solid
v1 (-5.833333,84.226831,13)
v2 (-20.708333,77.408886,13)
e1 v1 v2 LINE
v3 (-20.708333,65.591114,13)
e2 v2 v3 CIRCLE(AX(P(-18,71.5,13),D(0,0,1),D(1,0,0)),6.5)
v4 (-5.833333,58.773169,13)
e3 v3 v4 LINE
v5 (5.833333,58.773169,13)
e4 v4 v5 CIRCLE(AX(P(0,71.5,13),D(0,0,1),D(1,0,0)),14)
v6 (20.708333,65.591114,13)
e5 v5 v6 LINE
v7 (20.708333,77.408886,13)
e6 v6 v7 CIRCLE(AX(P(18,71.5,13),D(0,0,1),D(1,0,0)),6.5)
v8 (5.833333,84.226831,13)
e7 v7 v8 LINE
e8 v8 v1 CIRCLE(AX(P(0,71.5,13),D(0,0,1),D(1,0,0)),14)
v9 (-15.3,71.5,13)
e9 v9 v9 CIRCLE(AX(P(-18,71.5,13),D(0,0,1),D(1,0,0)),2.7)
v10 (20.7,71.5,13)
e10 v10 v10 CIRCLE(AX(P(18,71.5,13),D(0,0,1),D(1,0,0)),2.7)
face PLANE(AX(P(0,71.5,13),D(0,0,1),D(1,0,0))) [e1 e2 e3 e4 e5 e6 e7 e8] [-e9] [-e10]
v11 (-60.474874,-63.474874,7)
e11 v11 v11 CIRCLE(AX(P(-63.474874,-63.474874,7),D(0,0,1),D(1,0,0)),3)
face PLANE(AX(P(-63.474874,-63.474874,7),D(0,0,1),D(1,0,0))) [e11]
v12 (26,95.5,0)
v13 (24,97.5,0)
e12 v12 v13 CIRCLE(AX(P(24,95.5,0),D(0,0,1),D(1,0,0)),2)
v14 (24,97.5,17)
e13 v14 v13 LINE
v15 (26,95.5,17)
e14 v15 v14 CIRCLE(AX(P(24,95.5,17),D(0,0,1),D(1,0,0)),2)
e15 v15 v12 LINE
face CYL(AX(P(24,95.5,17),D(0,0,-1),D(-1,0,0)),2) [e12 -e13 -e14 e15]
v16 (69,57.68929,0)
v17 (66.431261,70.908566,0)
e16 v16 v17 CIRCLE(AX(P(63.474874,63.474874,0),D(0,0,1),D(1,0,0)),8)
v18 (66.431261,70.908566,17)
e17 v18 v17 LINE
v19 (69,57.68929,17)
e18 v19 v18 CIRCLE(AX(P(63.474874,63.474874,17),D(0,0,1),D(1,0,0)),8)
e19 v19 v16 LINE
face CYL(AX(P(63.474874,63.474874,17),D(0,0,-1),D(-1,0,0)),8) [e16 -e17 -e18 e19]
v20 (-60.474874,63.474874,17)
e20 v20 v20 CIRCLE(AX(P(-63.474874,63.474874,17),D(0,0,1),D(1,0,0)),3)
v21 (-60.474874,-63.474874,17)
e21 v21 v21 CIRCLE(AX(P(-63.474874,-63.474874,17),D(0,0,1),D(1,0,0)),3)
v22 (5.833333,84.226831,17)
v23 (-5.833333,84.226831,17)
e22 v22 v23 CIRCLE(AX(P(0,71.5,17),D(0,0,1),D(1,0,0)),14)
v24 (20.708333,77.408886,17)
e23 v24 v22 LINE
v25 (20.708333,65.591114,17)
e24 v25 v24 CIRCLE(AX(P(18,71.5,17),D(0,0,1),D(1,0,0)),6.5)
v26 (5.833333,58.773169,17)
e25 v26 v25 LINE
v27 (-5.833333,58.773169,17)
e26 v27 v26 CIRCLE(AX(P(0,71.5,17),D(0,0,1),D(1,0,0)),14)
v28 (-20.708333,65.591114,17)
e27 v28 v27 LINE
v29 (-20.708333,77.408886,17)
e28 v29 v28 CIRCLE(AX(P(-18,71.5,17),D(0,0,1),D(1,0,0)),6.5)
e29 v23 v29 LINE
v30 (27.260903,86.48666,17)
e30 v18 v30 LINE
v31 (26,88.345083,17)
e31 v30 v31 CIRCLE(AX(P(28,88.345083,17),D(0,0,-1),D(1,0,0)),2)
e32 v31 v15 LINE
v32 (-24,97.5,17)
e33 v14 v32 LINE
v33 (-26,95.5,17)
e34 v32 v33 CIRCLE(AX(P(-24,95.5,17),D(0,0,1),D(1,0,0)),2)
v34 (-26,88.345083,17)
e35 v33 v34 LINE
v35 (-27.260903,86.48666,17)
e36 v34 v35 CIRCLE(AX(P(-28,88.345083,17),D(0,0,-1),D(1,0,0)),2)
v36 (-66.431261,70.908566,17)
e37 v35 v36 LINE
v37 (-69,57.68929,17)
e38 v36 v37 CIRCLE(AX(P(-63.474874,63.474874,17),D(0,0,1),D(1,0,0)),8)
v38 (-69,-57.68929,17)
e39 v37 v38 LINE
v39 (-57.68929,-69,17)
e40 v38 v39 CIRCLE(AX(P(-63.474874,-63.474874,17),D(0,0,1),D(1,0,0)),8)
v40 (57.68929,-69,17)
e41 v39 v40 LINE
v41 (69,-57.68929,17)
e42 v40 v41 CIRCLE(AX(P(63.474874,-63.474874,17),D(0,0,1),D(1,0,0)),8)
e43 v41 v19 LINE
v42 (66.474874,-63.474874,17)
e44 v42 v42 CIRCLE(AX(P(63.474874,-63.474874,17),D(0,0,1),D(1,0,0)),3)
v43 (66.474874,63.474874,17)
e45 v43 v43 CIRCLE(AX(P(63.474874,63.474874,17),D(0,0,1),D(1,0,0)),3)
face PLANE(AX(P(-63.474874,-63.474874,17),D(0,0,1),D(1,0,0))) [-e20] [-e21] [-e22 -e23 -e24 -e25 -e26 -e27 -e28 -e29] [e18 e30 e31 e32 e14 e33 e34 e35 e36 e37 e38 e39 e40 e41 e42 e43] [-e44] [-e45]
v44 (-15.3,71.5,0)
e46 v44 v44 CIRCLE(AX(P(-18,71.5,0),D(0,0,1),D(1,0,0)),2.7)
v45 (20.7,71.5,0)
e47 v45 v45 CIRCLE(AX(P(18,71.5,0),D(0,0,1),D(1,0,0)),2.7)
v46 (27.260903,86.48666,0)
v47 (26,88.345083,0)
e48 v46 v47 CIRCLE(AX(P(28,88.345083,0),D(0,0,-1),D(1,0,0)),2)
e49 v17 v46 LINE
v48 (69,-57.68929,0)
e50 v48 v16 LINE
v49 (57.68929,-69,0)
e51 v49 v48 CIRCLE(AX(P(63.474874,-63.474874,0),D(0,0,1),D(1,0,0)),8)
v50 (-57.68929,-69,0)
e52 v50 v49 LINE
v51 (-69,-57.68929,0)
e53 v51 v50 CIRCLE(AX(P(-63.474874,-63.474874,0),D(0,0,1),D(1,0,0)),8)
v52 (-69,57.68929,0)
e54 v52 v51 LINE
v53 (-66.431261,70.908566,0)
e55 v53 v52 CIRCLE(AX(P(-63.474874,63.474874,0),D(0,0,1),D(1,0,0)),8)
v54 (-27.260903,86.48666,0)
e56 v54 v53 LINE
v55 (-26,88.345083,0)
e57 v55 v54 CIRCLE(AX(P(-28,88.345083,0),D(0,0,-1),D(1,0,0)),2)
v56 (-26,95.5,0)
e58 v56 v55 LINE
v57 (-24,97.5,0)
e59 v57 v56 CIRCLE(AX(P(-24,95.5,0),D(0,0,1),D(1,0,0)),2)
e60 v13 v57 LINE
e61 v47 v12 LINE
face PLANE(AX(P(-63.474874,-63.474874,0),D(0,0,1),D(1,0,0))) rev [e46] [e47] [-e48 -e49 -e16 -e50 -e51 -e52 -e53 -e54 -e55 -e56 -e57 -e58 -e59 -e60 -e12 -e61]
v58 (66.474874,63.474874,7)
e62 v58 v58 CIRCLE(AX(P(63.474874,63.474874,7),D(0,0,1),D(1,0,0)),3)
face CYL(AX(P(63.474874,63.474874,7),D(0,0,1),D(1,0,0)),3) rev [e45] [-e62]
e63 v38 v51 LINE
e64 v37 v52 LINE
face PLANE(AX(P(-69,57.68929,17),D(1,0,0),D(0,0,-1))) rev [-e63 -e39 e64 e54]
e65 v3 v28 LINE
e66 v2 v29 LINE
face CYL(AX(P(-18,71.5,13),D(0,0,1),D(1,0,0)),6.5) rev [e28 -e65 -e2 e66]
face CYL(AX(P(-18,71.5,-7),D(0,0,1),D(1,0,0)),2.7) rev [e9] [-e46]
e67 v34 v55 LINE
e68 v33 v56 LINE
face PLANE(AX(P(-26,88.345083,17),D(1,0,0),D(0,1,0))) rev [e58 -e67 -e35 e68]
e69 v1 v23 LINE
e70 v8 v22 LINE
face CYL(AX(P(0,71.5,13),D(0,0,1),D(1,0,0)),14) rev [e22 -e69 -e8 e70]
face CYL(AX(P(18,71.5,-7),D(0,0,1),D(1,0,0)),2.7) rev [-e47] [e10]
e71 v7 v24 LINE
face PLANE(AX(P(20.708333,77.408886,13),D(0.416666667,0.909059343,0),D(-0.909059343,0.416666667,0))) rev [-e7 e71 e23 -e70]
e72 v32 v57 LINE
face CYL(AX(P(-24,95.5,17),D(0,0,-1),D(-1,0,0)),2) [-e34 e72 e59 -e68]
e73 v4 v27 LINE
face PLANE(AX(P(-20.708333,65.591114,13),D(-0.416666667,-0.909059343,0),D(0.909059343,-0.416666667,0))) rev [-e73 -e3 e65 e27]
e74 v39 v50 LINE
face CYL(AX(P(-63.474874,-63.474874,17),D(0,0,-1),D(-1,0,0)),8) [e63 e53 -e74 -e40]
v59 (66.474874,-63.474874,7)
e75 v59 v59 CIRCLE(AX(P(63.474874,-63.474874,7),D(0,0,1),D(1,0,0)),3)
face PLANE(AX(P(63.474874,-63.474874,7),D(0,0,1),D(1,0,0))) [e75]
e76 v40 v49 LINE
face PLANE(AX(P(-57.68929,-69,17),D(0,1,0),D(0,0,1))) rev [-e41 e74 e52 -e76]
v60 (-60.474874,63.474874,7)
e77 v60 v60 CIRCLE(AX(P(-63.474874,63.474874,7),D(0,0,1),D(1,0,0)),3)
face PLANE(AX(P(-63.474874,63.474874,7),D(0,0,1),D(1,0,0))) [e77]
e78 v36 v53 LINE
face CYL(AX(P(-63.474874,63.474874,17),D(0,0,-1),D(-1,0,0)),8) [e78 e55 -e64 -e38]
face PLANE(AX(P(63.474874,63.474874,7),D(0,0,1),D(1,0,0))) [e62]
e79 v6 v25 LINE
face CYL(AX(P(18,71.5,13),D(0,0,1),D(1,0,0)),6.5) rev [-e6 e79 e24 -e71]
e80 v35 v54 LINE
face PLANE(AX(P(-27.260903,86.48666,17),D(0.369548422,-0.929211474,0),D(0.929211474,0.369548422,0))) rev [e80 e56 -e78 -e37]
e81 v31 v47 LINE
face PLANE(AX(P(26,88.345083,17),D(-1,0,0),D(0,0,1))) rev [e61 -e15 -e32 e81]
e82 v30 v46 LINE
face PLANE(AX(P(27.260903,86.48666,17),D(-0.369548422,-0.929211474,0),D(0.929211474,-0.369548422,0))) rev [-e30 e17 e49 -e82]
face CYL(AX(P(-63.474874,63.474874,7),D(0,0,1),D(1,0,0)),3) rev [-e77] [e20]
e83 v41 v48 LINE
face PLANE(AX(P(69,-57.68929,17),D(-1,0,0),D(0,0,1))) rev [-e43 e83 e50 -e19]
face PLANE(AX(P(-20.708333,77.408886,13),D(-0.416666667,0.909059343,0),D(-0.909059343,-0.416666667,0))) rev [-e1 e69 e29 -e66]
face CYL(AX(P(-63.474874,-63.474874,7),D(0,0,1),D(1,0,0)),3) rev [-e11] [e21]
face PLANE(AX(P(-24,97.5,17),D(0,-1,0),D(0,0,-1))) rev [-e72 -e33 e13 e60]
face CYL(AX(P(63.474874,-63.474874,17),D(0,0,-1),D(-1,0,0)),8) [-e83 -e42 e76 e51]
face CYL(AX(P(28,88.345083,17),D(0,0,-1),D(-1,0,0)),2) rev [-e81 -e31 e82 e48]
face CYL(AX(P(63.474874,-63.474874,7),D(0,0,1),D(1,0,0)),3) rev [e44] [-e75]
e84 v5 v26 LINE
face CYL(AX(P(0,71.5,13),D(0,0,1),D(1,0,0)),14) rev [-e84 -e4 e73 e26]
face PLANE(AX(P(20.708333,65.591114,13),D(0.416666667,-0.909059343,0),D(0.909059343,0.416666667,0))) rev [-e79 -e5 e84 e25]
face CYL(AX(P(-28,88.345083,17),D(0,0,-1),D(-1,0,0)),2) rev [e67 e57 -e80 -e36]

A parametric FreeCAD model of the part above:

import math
import FreeCAD as App
import Part
import Sketcher

V = App.Vector
Q = App.Units.Quantity

doc = App.newDocument("Part")
body = doc.addObject("PartDesign::Body", "Body")

# Sketch on XY plane
sketch1 = body.newObject("Sketcher::SketchObject", "Sketch")
sketch1.AttachmentSupport = (doc.getObject("XY_Plane"), [""])
sketch1.MapMode = "FlatFace"
sketch1.addGeometry(Part.LineSegment(V(-57.68929, -69, 0), V(57.68929, -69, 0)), False)
sketch1.addGeometry(Part.ArcOfCircle(Part.Circle(V(63.474874, -63.474874, 0), V(0, 0, 1), 8), math.radians(-136.319146), math.radians(46.319146)), False)
sketch1.addGeometry(Part.LineSegment(V(69, -57.68929, 0), V(69, 57.68929, 0)), False)
sketch1.addGeometry(Part.ArcOfCircle(Part.Circle(V(63.474874, 63.474874, 0), V(0, 0, 1), 8), math.radians(-46.319146), math.radians(68.31223)), False)
sketch1.addGeometry(Part.LineSegment(V(66.431261, 70.908566, 0), V(27.260903, 86.48666, 0)), False)
sketch1.addGeometry(Part.ArcOfCircle(Part.Circle(V(28, 88.345083, 0), V(0, 0, 1), 2), math.radians(180), math.radians(248.31223)), False)
sketch1.addGeometry(Part.LineSegment(V(26, 88.345083, 0), V(26, 95.5, 0)), False)
sketch1.addGeometry(Part.ArcOfCircle(Part.Circle(V(24, 95.5, 0), V(0, 0, 1), 2), math.radians(0), math.radians(90)), False)
sketch1.addGeometry(Part.LineSegment(V(24, 97.5, 0), V(-24, 97.5, 0)), False)
sketch1.addGeometry(Part.ArcOfCircle(Part.Circle(V(-24, 95.5, 0), V(0, 0, 1), 2), math.radians(90), math.radians(180)), False)
sketch1.addGeometry(Part.LineSegment(V(-26, 95.5, 0), V(-26, 88.345083, 0)), False)
sketch1.addGeometry(Part.ArcOfCircle(Part.Circle(V(-28, 88.345083, 0), V(0, 0, 1), 2), math.radians(-68.31223), math.radians(0)), False)
sketch1.addGeometry(Part.LineSegment(V(-27.260903, 86.48666, 0), V(-66.431261, 70.908566, 0)), False)
sketch1.addGeometry(Part.ArcOfCircle(Part.Circle(V(-63.474874, 63.474874, 0), V(0, 0, 1), 8), math.radians(111.68777), math.radians(226.319146)), False)
sketch1.addGeometry(Part.LineSegment(V(-69, 57.68929, 0), V(-69, -57.68929, 0)), False)
sketch1.addGeometry(Part.ArcOfCircle(Part.Circle(V(-63.474874, -63.474874, 0), V(0, 0, 1), 8), math.radians(133.680854), math.radians(316.319146)), False)
sketch1.addConstraint(Sketcher.Constraint("Coincident", 0, 2, 1, 1))
sketch1.addConstraint(Sketcher.Constraint("Coincident", 1, 2, 2, 1))
sketch1.addConstraint(Sketcher.Constraint("Coincident", 2, 2, 3, 1))
sketch1.addConstraint(Sketcher.Constraint("Tangent", 3, 2, 4, 1))
sketch1.addConstraint(Sketcher.Constraint("Tangent", 4, 2, 5, 2))
sketch1.addConstraint(Sketcher.Constraint("Tangent", 5, 1, 6, 1))
sketch1.addConstraint(Sketcher.Constraint("Tangent", 6, 2, 7, 1))
sketch1.addConstraint(Sketcher.Constraint("Tangent", 7, 2, 8, 1))
sketch1.addConstraint(Sketcher.Constraint("Tangent", 8, 2, 9, 1))
sketch1.addConstraint(Sketcher.Constraint("Tangent", 9, 2, 10, 1))
sketch1.addConstraint(Sketcher.Constraint("Tangent", 10, 2, 11, 2))
sketch1.addConstraint(Sketcher.Constraint("Tangent", 11, 1, 12, 1))
sketch1.addConstraint(Sketcher.Constraint("Tangent", 12, 2, 13, 1))
sketch1.addConstraint(Sketcher.Constraint("Coincident", 13, 2, 14, 1))
sketch1.addConstraint(Sketcher.Constraint("Coincident", 14, 2, 15, 1))
sketch1.addConstraint(Sketcher.Constraint("Coincident", 15, 2, 0, 1))
sketch1.addConstraint(Sketcher.Constraint("Horizontal", 0))
sketch1.addConstraint(Sketcher.Constraint("Vertical", 2))
sketch1.addConstraint(Sketcher.Constraint("Vertical", 6))
sketch1.addConstraint(Sketcher.Constraint("Horizontal", 8))
sketch1.addConstraint(Sketcher.Constraint("Vertical", 10))
sketch1.addConstraint(Sketcher.Constraint("Vertical", 14))
sketch1.addConstraint(Sketcher.Constraint("Equal", 1, 3))
sketch1.addConstraint(Sketcher.Constraint("Equal", 5, 7))
sketch1.addConstraint(Sketcher.Constraint("Equal", 7, 9))
sketch1.addConstraint(Sketcher.Constraint("Equal", 9, 11))
sketch1.addConstraint(Sketcher.Constraint("Equal", 3, 13))
sketch1.addConstraint(Sketcher.Constraint("Equal", 13, 15))
sketch1.addConstraint(Sketcher.Constraint("Symmetric", 1, 3, 13, 3, -1, 1))
sketch1.addConstraint(Sketcher.Constraint("Symmetric", 3, 3, 15, 3, -1, 1))
sketch1.addConstraint(Sketcher.Constraint("Symmetric", 5, 3, 11, 3, -2))
sketch1.addConstraint(Sketcher.Constraint("Symmetric", 3, 3, 13, 3, -2))
sketch1.addConstraint(Sketcher.Constraint("Horizontal", 2, 2, 13, 2))
sketch1.addConstraint(Sketcher.Constraint("Equal", 0, 2))
sketch1.addConstraint(Sketcher.Constraint("Radius", 1, Q("8 mm")))
sketch1.addConstraint(Sketcher.Constraint("Radius", 5, Q("2 mm")))
sketch1.addConstraint(Sketcher.Constraint("DistanceX", 8, 2, 8, 1, Q("48 mm")))
sketch1.addConstraint(Sketcher.Constraint("DistanceY", 0, 2, -1, 1, Q("69 mm")))
sketch1.addConstraint(Sketcher.Constraint("DistanceX", -1, 1, 1, 2, Q("69 mm")))
sketch1.addConstraint(Sketcher.Constraint("DistanceY", -1, 1, 7, 3, Q("95.5 mm")))
sketch1.addConstraint(Sketcher.Constraint("DistanceX", 0, 1, 0, 2, Q("115.37858 mm")))
sketch1.addConstraint(Sketcher.Constraint("DistanceY", 6, 1, 6, 2, Q("7.154917 mm")))
pad1 = body.newObject("PartDesign::Pad", "Pad")
pad1.Profile = sketch1
pad1.Length = 17

# Sketch on XY plane
sketch2 = body.newObject("Sketcher::SketchObject", "Sketch001")
sketch2.AttachmentSupport = (doc.getObject("XY_Plane"), [""])
sketch2.MapMode = "FlatFace"
sketch2.AttachmentOffset = App.Placement(V(0, 0, 17), App.Rotation())
sketch2.addGeometry(Part.Circle(V(-63.474874, 63.474874, 0), V(0, 0, 1), 3), False)
sketch2.addGeometry(Part.Circle(V(63.474874, 63.474874, 0), V(0, 0, 1), 3), False)
sketch2.addGeometry(Part.Circle(V(-63.474874, -63.474874, 0), V(0, 0, 1), 3), False)
sketch2.addGeometry(Part.Circle(V(63.474874, -63.474874, 0), V(0, 0, 1), 3), False)
sketch2.addConstraint(Sketcher.Constraint("Equal", 0, 1))
sketch2.addConstraint(Sketcher.Constraint("Equal", 1, 2))
sketch2.addConstraint(Sketcher.Constraint("Equal", 2, 3))
sketch2.addConstraint(Sketcher.Constraint("Symmetric", 1, 3, 2, 3, -1, 1))
sketch2.addConstraint(Sketcher.Constraint("Symmetric", 0, 3, 3, 3, -1, 1))
sketch2.addConstraint(Sketcher.Constraint("Symmetric", 0, 3, 1, 3, -2))
sketch2.addConstraint(Sketcher.Constraint("Diameter", 0, Q("6 mm")))
sketch2.addConstraint(Sketcher.Constraint("DistanceX", 0, 3, -1, 1, Q("63.474874 mm")))
sketch2.addConstraint(Sketcher.Constraint("DistanceY", -1, 1, 0, 3, Q("63.474874 mm")))
pocket1 = body.newObject("PartDesign::Pocket", "Pocket")
pocket1.Profile = sketch2
pocket1.Length = 10

# Sketch on XY plane
sketch3 = body.newObject("Sketcher::SketchObject", "Sketch002")
sketch3.AttachmentSupport = (doc.getObject("XY_Plane"), [""])
sketch3.MapMode = "FlatFace"
sketch3.AttachmentOffset = App.Placement(V(0, 0, 17), App.Rotation())
sketch3.addGeometry(Part.LineSegment(V(-5.833333, 84.226831, 0), V(-20.708333, 77.408886, 0)), False)
sketch3.addGeometry(Part.ArcOfCircle(Part.Circle(V(-18, 71.5, 0), V(0, 0, 1), 6.5), math.radians(114.624318), math.radians(245.375682)), False)
sketch3.addGeometry(Part.LineSegment(V(-20.708333, 65.591114, 0), V(-5.833333, 58.773169, 0)), False)
sketch3.addGeometry(Part.ArcOfCircle(Part.Circle(V(0, 71.5, 0), V(0, 0, 1), 14), math.radians(-114.624318), math.radians(-90)), False)
sketch3.addGeometry(Part.ArcOfCircle(Part.Circle(V(0, 71.5, 0), V(0, 0, 1), 14), math.radians(-90), math.radians(-65.375682)), False)
sketch3.addGeometry(Part.LineSegment(V(5.833333, 58.773169, 0), V(20.708333, 65.591114, 0)), False)
sketch3.addGeometry(Part.ArcOfCircle(Part.Circle(V(18, 71.5, 0), V(0, 0, 1), 6.5), math.radians(-65.375682), math.radians(65.375682)), False)
sketch3.addGeometry(Part.LineSegment(V(20.708333, 77.408886, 0), V(5.833333, 84.226831, 0)), False)
sketch3.addGeometry(Part.ArcOfCircle(Part.Circle(V(0, 71.5, 0), V(0, 0, 1), 14), math.radians(65.375682), math.radians(90)), False)
sketch3.addGeometry(Part.ArcOfCircle(Part.Circle(V(0, 71.5, 0), V(0, 0, 1), 14), math.radians(90), math.radians(114.624318)), False)
sketch3.addConstraint(Sketcher.Constraint("Tangent", 0, 2, 1, 1))
sketch3.addConstraint(Sketcher.Constraint("Tangent", 1, 2, 2, 1))
sketch3.addConstraint(Sketcher.Constraint("Tangent", 2, 2, 3, 1))
sketch3.addConstraint(Sketcher.Constraint("Tangent", 3, 2, 4, 1))
sketch3.addConstraint(Sketcher.Constraint("Tangent", 4, 2, 5, 1))
sketch3.addConstraint(Sketcher.Constraint("Tangent", 5, 2, 6, 1))
sketch3.addConstraint(Sketcher.Constraint("Tangent", 6, 2, 7, 1))
sketch3.addConstraint(Sketcher.Constraint("Tangent", 7, 2, 8, 1))
sketch3.addConstraint(Sketcher.Constraint("Tangent", 8, 2, 9, 1))
sketch3.addConstraint(Sketcher.Constraint("Tangent", 9, 2, 0, 1))
sketch3.addConstraint(Sketcher.Constraint("Coincident", 8, 3, 3, 3))
sketch3.addConstraint(Sketcher.Constraint("Equal", 3, 4))
sketch3.addConstraint(Sketcher.Constraint("Equal", 1, 6))
sketch3.addConstraint(Sketcher.Constraint("Equal", 4, 8))
sketch3.addConstraint(Sketcher.Constraint("Equal", 8, 9))
sketch3.addConstraint(Sketcher.Constraint("Symmetric", 1, 3, 6, 3, -2))
sketch3.addConstraint(Sketcher.Constraint("PointOnObject", 3, 3, -2))
sketch3.addConstraint(Sketcher.Constraint("PointOnObject", 3, 2, -2))
sketch3.addConstraint(Sketcher.Constraint("PointOnObject", 8, 2, -2))
sketch3.addConstraint(Sketcher.Constraint("Parallel", 0, 5))
sketch3.addConstraint(Sketcher.Constraint("Radius", 3, Q("14 mm")))
sketch3.addConstraint(Sketcher.Constraint("Radius", 1, Q("6.5 mm")))
sketch3.addConstraint(Sketcher.Constraint("DistanceX", 1, 3, -1, 1, Q("18 mm")))
sketch3.addConstraint(Sketcher.Constraint("DistanceY", -1, 1, 1, 3, Q("71.5 mm")))
pocket2 = body.newObject("PartDesign::Pocket", "Pocket001")
pocket2.Profile = sketch3
pocket2.Length = 4

# Sketch on XY plane
sketch4 = body.newObject("Sketcher::SketchObject", "Sketch003")
sketch4.AttachmentSupport = (doc.getObject("XY_Plane"), [""])
sketch4.MapMode = "FlatFace"
sketch4.AttachmentOffset = App.Placement(V(0, 0, 13), App.Rotation())
sketch4.addGeometry(Part.Circle(V(-18, 71.5, 0), V(0, 0, 1), 2.7), False)
sketch4.addGeometry(Part.Circle(V(18, 71.5, 0), V(0, 0, 1), 2.7), False)
sketch4.addConstraint(Sketcher.Constraint("Equal", 0, 1))
sketch4.addConstraint(Sketcher.Constraint("Symmetric", 0, 3, 1, 3, -2))
sketch4.addConstraint(Sketcher.Constraint("Diameter", 0, Q("5.4 mm")))
sketch4.addConstraint(Sketcher.Constraint("DistanceX", 0, 3, -1, 1, Q("18 mm")))
sketch4.addConstraint(Sketcher.Constraint("DistanceY", -1, 1, 0, 3, Q("71.5 mm")))
pocket3 = body.newObject("PartDesign::Pocket", "Pocket002")
pocket3.Profile = sketch4
pocket3.Length = 20

doc.recompute()
